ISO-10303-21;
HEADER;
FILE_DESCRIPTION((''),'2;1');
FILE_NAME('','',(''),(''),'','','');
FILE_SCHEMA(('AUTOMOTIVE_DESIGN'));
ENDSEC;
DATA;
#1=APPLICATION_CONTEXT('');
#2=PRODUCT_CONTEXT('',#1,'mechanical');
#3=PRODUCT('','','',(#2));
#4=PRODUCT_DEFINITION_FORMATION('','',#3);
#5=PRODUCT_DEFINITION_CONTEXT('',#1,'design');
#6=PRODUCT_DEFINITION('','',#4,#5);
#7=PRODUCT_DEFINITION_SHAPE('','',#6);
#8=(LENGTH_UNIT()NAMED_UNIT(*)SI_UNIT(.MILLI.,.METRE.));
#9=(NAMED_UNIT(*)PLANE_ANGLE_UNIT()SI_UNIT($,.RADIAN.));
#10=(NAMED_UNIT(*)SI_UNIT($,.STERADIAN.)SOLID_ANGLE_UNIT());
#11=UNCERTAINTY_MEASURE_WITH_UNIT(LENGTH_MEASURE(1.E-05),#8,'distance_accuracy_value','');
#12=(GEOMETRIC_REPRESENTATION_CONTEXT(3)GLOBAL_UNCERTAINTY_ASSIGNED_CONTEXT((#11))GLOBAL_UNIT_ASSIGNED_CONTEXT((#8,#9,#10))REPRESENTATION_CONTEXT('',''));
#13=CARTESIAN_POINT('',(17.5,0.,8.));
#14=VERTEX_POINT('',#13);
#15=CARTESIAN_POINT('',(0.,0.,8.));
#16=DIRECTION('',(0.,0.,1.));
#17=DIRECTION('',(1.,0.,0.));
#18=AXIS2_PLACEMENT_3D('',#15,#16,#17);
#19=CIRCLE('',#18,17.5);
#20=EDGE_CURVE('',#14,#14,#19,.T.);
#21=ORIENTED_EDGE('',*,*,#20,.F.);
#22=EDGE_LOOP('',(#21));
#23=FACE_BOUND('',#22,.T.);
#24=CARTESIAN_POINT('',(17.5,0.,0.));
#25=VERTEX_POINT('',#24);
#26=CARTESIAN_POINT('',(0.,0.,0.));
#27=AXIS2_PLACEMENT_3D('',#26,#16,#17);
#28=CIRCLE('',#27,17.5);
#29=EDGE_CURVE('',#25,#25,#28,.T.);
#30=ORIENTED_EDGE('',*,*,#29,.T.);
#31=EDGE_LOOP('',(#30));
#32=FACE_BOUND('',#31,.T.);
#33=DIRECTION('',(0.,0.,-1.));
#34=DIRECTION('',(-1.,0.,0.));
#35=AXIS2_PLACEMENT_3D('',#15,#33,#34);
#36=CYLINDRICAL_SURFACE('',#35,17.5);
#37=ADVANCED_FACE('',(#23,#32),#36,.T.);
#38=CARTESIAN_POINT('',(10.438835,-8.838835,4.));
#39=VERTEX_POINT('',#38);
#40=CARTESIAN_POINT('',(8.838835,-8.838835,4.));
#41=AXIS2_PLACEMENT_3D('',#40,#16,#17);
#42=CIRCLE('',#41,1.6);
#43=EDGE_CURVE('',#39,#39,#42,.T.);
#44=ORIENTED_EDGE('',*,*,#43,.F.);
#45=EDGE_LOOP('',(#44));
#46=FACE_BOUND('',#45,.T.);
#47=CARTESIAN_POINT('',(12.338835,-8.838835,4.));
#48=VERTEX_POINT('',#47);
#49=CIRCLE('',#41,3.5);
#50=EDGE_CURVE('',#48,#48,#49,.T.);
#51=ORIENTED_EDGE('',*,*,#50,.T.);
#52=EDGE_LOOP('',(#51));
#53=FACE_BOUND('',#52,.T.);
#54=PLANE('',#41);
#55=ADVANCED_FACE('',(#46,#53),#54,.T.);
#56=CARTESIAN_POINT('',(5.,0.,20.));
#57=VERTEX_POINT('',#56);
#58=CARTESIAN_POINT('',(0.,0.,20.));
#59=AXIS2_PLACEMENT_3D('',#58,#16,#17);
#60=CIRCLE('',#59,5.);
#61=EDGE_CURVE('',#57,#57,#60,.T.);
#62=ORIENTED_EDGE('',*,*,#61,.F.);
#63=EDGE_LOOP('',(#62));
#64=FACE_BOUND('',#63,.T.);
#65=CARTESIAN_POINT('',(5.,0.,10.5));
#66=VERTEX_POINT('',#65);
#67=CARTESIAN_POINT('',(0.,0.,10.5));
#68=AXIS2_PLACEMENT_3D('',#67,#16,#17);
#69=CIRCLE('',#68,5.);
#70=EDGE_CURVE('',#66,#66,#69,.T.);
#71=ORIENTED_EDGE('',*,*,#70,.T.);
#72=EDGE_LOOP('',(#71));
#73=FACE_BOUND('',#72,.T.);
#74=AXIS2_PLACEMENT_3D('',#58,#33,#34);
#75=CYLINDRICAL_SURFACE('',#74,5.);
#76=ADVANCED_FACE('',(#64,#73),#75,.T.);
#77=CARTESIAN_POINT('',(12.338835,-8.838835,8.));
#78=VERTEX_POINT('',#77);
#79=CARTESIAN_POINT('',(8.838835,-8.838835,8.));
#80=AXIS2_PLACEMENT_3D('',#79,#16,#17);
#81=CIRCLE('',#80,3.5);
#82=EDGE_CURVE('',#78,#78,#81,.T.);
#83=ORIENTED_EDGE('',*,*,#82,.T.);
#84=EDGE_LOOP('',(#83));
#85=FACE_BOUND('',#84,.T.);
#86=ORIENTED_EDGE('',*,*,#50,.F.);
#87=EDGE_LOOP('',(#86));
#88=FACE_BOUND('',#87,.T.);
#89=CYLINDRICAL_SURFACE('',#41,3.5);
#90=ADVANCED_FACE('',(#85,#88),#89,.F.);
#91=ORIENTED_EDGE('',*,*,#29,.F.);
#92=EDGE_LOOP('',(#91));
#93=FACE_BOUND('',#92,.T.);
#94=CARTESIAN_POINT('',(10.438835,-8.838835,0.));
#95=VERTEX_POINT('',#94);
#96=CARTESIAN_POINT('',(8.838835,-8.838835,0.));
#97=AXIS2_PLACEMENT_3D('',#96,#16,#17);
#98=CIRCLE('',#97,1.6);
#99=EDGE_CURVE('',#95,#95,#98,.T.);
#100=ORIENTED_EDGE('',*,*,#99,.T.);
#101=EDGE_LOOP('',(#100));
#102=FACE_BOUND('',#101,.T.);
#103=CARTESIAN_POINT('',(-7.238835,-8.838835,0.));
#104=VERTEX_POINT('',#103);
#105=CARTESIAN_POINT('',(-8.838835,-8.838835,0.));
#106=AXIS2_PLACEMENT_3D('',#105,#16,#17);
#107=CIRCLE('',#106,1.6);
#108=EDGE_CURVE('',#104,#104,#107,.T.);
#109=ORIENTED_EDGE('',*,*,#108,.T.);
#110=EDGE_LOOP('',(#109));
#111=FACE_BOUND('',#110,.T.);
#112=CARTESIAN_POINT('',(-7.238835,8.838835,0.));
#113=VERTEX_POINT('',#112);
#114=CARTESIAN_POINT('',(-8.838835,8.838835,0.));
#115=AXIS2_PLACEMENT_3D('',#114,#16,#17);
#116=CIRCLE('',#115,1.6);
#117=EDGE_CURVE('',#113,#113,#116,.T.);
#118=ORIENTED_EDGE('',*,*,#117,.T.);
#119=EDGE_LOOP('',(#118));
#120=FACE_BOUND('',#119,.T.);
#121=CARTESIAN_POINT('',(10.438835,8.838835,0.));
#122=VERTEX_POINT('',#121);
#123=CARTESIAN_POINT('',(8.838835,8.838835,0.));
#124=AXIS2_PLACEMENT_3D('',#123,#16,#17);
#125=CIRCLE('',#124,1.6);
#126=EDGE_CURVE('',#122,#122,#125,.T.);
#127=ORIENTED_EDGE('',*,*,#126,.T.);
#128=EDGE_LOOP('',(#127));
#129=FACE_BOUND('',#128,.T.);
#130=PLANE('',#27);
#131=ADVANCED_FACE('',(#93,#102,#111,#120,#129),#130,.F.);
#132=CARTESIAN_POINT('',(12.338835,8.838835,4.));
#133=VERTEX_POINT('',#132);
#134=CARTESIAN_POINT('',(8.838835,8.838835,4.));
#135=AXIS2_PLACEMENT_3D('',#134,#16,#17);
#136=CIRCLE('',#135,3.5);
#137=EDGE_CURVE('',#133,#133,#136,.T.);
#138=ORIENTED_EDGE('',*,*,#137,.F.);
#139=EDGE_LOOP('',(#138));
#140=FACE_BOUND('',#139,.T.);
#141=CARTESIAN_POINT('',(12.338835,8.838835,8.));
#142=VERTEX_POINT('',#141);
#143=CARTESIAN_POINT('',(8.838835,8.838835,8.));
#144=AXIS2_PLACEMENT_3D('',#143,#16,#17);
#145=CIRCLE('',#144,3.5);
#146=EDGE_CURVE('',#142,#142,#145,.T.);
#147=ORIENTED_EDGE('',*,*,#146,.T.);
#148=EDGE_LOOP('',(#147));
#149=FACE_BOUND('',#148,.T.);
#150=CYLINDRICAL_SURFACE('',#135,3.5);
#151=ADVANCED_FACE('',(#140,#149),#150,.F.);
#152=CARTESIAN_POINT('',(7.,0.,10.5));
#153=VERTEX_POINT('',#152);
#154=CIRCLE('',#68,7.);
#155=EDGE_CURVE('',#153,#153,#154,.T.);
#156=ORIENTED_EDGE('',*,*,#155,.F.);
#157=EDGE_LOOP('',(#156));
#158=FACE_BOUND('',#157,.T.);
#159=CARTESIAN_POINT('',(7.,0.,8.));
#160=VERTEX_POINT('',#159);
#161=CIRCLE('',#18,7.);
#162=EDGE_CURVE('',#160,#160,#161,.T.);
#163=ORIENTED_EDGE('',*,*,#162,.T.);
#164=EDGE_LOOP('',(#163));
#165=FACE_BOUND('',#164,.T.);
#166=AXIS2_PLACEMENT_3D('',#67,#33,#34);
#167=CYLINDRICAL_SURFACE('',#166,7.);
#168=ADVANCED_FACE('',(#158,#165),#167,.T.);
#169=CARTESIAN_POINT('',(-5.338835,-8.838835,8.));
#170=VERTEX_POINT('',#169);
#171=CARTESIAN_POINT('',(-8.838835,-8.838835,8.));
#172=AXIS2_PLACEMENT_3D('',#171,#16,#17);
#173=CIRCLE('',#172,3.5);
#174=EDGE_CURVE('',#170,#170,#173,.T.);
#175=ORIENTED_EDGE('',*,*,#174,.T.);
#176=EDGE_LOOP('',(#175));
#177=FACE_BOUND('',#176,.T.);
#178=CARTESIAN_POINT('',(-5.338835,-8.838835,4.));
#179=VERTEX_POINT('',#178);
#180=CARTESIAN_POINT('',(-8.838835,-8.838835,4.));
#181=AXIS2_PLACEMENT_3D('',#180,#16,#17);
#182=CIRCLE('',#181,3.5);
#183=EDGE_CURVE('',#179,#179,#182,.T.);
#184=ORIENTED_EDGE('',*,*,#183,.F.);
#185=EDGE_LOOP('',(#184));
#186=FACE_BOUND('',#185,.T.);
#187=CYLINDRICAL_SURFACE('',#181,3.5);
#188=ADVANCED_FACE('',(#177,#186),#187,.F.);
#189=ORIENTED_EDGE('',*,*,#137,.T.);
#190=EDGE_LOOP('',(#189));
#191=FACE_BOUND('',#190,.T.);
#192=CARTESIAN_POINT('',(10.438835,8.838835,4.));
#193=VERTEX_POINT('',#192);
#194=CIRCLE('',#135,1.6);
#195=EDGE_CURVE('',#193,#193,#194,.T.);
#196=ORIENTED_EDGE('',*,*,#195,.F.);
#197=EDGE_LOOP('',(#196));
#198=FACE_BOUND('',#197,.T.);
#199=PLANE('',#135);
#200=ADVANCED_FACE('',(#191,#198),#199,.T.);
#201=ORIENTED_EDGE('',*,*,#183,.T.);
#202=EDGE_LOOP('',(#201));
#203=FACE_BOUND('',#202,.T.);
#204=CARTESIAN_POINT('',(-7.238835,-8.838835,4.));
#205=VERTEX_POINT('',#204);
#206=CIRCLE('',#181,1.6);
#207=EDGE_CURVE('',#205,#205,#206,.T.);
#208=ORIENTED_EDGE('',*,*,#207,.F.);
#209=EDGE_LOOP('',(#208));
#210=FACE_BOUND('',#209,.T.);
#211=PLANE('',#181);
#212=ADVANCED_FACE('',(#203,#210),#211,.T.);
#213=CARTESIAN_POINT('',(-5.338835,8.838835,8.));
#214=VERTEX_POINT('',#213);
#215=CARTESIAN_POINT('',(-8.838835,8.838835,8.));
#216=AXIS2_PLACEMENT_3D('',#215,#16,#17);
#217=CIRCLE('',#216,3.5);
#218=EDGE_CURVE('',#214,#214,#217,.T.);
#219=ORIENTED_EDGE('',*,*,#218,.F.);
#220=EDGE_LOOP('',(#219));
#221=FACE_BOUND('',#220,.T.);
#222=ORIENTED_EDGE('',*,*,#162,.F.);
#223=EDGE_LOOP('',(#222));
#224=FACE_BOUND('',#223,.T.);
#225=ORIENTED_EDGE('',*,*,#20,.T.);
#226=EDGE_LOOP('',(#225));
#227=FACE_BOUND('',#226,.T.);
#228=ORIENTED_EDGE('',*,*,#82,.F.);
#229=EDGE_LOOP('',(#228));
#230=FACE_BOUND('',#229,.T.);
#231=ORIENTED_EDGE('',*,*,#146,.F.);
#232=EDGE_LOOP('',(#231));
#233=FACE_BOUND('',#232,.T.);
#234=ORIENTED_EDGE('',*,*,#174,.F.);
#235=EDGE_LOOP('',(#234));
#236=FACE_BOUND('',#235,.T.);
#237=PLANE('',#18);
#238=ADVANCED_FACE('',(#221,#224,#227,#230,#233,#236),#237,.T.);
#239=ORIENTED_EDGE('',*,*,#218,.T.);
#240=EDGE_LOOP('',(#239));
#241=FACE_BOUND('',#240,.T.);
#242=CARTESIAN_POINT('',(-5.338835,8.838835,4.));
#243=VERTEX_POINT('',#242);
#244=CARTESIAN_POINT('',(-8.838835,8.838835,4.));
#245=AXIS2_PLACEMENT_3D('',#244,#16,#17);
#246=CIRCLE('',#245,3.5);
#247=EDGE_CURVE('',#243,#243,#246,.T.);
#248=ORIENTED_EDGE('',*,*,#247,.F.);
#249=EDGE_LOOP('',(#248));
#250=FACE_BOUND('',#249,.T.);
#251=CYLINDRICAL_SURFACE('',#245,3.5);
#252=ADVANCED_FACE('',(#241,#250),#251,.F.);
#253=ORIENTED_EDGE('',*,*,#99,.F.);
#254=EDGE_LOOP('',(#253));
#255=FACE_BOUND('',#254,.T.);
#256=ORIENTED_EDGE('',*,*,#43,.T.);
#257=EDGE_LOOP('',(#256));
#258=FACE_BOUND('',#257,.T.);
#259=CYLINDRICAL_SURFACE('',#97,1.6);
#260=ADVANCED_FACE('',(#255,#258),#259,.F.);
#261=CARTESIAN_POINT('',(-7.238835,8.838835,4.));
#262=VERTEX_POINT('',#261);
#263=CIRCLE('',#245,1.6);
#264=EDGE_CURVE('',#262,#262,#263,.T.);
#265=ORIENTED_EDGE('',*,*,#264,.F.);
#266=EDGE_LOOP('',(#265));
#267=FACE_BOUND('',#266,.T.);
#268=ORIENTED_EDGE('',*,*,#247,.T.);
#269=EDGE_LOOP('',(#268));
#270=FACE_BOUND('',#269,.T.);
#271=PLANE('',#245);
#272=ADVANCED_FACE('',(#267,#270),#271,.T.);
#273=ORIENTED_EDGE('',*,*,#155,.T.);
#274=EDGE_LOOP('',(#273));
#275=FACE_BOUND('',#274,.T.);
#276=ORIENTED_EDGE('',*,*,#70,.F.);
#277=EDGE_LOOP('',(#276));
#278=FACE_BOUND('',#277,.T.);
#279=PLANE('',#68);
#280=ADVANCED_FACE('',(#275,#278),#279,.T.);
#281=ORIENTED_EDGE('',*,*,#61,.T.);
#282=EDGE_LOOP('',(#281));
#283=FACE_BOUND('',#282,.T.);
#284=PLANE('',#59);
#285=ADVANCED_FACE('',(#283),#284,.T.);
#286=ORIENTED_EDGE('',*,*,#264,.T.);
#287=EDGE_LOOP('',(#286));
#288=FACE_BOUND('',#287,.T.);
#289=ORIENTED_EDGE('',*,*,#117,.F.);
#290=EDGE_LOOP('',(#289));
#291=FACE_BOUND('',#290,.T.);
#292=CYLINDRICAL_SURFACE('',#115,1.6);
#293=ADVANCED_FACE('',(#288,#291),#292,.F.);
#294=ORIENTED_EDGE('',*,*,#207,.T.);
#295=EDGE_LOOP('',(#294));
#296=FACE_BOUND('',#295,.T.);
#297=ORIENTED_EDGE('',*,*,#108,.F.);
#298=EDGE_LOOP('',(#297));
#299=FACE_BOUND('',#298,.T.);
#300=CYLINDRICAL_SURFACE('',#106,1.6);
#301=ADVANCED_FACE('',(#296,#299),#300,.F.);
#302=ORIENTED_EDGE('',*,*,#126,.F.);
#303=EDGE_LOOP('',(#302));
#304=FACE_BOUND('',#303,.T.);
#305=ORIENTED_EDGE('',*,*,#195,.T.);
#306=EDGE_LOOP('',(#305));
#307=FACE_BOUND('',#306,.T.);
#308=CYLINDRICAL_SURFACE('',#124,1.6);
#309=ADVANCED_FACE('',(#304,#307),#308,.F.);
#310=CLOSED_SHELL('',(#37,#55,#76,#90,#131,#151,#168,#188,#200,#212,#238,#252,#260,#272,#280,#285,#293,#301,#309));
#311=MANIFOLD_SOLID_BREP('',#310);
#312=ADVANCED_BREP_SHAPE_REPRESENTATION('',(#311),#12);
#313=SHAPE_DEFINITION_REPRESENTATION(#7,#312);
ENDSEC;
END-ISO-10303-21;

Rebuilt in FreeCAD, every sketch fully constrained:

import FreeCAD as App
import Part
import Sketcher

V = App.Vector

doc = App.newDocument("Part")
body = doc.addObject("PartDesign::Body", "Body")

# Sketch on XY plane
sketch1 = doc.addObject("Sketcher::SketchObject", "Sketch")
body.addObject(sketch1)
sketch1.AttachmentSupport = (doc.XY_Plane, [""])
sketch1.MapMode = "FlatFace"
sketch1.addGeometry(Part.Circle(V(0, 0, 0), V(0, 0, 1), 17.5), False)
sketch1.addConstraint([
    Sketcher.Constraint("Coincident", 0, 3, -1, 1),
    Sketcher.Constraint("Diameter", 0, 35.0),
])
pad1 = doc.addObject("PartDesign::Pad", "Pad")
body.addObject(pad1)
pad1.Profile = sketch1
pad1.Length = 8

# Sketch on XY plane
sketch2 = doc.addObject("Sketcher::SketchObject", "Sketch001")
body.addObject(sketch2)
sketch2.AttachmentSupport = (doc.XY_Plane, [""])
sketch2.MapMode = "FlatFace"
sketch2.AttachmentOffset = App.Placement(V(0, 0, 8), App.Rotation())
sketch2.addGeometry(Part.Circle(V(0, 0, 0), V(0, 0, 1), 7), False)
sketch2.addConstraint([
    Sketcher.Constraint("Coincident", 0, 3, -1, 1),
    Sketcher.Constraint("Diameter", 0, 14.0),
])
pad2 = doc.addObject("PartDesign::Pad", "Pad001")
body.addObject(pad2)
pad2.Profile = sketch2
pad2.Length = 2.5

# Sketch on XY plane
sketch3 = doc.addObject("Sketcher::SketchObject", "Sketch002")
body.addObject(sketch3)
sketch3.AttachmentSupport = (doc.XY_Plane, [""])
sketch3.MapMode = "FlatFace"
sketch3.AttachmentOffset = App.Placement(V(0, 0, 10.5), App.Rotation())
sketch3.addGeometry(Part.Circle(V(0, 0, 0), V(0, 0, 1), 5), False)
sketch3.addConstraint([
    Sketcher.Constraint("Coincident", 0, 3, -1, 1),
    Sketcher.Constraint("Diameter", 0, 10.0),
])
pad3 = doc.addObject("PartDesign::Pad", "Pad002")
body.addObject(pad3)
pad3.Profile = sketch3
pad3.Length = 9.5

# Sketch on XY plane
sketch4 = doc.addObject("Sketcher::SketchObject", "Sketch003")
body.addObject(sketch4)
sketch4.AttachmentSupport = (doc.XY_Plane, [""])
sketch4.MapMode = "FlatFace"
sketch4.AttachmentOffset = App.Placement(V(0, 0, 8), App.Rotation())
sketch4.addGeometry([
    Part.Circle(V(8.838835, 8.838835, 0), V(0, 0, 1), 1.6),
    Part.Circle(V(8.838835, -8.838835, 0), V(0, 0, 1), 1.6),
    Part.Circle(V(-8.838835, -8.838835, 0), V(0, 0, 1), 1.6),
    Part.Circle(V(-8.838835, 8.838835, 0), V(0, 0, 1), 1.6),
], False)
sketch4.addConstraint([
    Sketcher.Constraint("Equal", 0, 1),
    Sketcher.Constraint("Equal", 1, 2),
    Sketcher.Constraint("Equal", 2, 3),
    Sketcher.Constraint("Symmetric", 0, 3, 2, 3, -1, 1),
    Sketcher.Constraint("Symmetric", 1, 3, 3, 3, -1, 1),
    Sketcher.Constraint("Symmetric", 1, 3, 2, 3, -2),
    Sketcher.Constraint("Diameter", 0, 3.2),
    Sketcher.Constraint("DistanceY", 1, 3, 0, 3, 17.67767),
    Sketcher.Constraint("DistanceX", 2, 3, 1, 3, 17.67767),
])
pocket1 = doc.addObject("PartDesign::Pocket", "Pocket")
body.addObject(pocket1)
pocket1.Profile = sketch4
pocket1.Type = "ThroughAll"

# Sketch on XY plane
sketch5 = doc.addObject("Sketcher::SketchObject", "Sketch004")
body.addObject(sketch5)
sketch5.AttachmentSupport = (doc.XY_Plane, [""])
sketch5.MapMode = "FlatFace"
sketch5.AttachmentOffset = App.Placement(V(0, 0, 8), App.Rotation())
sketch5.addGeometry([
    Part.Circle(V(8.838835, 8.838835, 0), V(0, 0, 1), 3.5),  # 0
    Part.Circle(V(8.838835, 8.838835, 0), V(0, 0, 1), 1.6),  # 1
    Part.Circle(V(8.838835, -8.838835, 0), V(0, 0, 1), 3.5),  # 2
    Part.Circle(V(8.838835, -8.838835, 0), V(0, 0, 1), 1.6),  # 3
    Part.Circle(V(-8.838835, -8.838835, 0), V(0, 0, 1), 3.5),  # 4
    Part.Circle(V(-8.838835, -8.838835, 0), V(0, 0, 1), 1.6),  # 5
    Part.Circle(V(-8.838835, 8.838835, 0), V(0, 0, 1), 3.5),  # 6
    Part.Circle(V(-8.838835, 8.838835, 0), V(0, 0, 1), 1.6),  # 7
], False)
sketch5.addConstraint([
    Sketcher.Constraint("Coincident", 1, 3, 0, 3),
    Sketcher.Constraint("Coincident", 3, 3, 2, 3),
    Sketcher.Constraint("Coincident", 5, 3, 4, 3),
    Sketcher.Constraint("Coincident", 7, 3, 6, 3),
    Sketcher.Constraint("Equal", 0, 2),
    Sketcher.Constraint("Equal", 1, 3),
    Sketcher.Constraint("Equal", 2, 4),
    Sketcher.Constraint("Equal", 3, 5),
    Sketcher.Constraint("Equal", 4, 6),
    Sketcher.Constraint("Equal", 5, 7),
    Sketcher.Constraint("Symmetric", 0, 3, 4, 3, -1, 1),
    Sketcher.Constraint("Symmetric", 2, 3, 6, 3, -1, 1),
    Sketcher.Constraint("Symmetric", 2, 3, 4, 3, -2),
    Sketcher.Constraint("Diameter", 0, 7.0),
    Sketcher.Constraint("Diameter", 1, 3.2),
    Sketcher.Constraint("DistanceY", 2, 3, 0, 3, 17.67767),
    Sketcher.Constraint("DistanceX", 4, 3, 2, 3, 17.67767),
])
pocket2 = doc.addObject("PartDesign::Pocket", "Pocket001")
body.addObject(pocket2)
pocket2.Profile = sketch5
pocket2.Length = 4

doc.recompute()
